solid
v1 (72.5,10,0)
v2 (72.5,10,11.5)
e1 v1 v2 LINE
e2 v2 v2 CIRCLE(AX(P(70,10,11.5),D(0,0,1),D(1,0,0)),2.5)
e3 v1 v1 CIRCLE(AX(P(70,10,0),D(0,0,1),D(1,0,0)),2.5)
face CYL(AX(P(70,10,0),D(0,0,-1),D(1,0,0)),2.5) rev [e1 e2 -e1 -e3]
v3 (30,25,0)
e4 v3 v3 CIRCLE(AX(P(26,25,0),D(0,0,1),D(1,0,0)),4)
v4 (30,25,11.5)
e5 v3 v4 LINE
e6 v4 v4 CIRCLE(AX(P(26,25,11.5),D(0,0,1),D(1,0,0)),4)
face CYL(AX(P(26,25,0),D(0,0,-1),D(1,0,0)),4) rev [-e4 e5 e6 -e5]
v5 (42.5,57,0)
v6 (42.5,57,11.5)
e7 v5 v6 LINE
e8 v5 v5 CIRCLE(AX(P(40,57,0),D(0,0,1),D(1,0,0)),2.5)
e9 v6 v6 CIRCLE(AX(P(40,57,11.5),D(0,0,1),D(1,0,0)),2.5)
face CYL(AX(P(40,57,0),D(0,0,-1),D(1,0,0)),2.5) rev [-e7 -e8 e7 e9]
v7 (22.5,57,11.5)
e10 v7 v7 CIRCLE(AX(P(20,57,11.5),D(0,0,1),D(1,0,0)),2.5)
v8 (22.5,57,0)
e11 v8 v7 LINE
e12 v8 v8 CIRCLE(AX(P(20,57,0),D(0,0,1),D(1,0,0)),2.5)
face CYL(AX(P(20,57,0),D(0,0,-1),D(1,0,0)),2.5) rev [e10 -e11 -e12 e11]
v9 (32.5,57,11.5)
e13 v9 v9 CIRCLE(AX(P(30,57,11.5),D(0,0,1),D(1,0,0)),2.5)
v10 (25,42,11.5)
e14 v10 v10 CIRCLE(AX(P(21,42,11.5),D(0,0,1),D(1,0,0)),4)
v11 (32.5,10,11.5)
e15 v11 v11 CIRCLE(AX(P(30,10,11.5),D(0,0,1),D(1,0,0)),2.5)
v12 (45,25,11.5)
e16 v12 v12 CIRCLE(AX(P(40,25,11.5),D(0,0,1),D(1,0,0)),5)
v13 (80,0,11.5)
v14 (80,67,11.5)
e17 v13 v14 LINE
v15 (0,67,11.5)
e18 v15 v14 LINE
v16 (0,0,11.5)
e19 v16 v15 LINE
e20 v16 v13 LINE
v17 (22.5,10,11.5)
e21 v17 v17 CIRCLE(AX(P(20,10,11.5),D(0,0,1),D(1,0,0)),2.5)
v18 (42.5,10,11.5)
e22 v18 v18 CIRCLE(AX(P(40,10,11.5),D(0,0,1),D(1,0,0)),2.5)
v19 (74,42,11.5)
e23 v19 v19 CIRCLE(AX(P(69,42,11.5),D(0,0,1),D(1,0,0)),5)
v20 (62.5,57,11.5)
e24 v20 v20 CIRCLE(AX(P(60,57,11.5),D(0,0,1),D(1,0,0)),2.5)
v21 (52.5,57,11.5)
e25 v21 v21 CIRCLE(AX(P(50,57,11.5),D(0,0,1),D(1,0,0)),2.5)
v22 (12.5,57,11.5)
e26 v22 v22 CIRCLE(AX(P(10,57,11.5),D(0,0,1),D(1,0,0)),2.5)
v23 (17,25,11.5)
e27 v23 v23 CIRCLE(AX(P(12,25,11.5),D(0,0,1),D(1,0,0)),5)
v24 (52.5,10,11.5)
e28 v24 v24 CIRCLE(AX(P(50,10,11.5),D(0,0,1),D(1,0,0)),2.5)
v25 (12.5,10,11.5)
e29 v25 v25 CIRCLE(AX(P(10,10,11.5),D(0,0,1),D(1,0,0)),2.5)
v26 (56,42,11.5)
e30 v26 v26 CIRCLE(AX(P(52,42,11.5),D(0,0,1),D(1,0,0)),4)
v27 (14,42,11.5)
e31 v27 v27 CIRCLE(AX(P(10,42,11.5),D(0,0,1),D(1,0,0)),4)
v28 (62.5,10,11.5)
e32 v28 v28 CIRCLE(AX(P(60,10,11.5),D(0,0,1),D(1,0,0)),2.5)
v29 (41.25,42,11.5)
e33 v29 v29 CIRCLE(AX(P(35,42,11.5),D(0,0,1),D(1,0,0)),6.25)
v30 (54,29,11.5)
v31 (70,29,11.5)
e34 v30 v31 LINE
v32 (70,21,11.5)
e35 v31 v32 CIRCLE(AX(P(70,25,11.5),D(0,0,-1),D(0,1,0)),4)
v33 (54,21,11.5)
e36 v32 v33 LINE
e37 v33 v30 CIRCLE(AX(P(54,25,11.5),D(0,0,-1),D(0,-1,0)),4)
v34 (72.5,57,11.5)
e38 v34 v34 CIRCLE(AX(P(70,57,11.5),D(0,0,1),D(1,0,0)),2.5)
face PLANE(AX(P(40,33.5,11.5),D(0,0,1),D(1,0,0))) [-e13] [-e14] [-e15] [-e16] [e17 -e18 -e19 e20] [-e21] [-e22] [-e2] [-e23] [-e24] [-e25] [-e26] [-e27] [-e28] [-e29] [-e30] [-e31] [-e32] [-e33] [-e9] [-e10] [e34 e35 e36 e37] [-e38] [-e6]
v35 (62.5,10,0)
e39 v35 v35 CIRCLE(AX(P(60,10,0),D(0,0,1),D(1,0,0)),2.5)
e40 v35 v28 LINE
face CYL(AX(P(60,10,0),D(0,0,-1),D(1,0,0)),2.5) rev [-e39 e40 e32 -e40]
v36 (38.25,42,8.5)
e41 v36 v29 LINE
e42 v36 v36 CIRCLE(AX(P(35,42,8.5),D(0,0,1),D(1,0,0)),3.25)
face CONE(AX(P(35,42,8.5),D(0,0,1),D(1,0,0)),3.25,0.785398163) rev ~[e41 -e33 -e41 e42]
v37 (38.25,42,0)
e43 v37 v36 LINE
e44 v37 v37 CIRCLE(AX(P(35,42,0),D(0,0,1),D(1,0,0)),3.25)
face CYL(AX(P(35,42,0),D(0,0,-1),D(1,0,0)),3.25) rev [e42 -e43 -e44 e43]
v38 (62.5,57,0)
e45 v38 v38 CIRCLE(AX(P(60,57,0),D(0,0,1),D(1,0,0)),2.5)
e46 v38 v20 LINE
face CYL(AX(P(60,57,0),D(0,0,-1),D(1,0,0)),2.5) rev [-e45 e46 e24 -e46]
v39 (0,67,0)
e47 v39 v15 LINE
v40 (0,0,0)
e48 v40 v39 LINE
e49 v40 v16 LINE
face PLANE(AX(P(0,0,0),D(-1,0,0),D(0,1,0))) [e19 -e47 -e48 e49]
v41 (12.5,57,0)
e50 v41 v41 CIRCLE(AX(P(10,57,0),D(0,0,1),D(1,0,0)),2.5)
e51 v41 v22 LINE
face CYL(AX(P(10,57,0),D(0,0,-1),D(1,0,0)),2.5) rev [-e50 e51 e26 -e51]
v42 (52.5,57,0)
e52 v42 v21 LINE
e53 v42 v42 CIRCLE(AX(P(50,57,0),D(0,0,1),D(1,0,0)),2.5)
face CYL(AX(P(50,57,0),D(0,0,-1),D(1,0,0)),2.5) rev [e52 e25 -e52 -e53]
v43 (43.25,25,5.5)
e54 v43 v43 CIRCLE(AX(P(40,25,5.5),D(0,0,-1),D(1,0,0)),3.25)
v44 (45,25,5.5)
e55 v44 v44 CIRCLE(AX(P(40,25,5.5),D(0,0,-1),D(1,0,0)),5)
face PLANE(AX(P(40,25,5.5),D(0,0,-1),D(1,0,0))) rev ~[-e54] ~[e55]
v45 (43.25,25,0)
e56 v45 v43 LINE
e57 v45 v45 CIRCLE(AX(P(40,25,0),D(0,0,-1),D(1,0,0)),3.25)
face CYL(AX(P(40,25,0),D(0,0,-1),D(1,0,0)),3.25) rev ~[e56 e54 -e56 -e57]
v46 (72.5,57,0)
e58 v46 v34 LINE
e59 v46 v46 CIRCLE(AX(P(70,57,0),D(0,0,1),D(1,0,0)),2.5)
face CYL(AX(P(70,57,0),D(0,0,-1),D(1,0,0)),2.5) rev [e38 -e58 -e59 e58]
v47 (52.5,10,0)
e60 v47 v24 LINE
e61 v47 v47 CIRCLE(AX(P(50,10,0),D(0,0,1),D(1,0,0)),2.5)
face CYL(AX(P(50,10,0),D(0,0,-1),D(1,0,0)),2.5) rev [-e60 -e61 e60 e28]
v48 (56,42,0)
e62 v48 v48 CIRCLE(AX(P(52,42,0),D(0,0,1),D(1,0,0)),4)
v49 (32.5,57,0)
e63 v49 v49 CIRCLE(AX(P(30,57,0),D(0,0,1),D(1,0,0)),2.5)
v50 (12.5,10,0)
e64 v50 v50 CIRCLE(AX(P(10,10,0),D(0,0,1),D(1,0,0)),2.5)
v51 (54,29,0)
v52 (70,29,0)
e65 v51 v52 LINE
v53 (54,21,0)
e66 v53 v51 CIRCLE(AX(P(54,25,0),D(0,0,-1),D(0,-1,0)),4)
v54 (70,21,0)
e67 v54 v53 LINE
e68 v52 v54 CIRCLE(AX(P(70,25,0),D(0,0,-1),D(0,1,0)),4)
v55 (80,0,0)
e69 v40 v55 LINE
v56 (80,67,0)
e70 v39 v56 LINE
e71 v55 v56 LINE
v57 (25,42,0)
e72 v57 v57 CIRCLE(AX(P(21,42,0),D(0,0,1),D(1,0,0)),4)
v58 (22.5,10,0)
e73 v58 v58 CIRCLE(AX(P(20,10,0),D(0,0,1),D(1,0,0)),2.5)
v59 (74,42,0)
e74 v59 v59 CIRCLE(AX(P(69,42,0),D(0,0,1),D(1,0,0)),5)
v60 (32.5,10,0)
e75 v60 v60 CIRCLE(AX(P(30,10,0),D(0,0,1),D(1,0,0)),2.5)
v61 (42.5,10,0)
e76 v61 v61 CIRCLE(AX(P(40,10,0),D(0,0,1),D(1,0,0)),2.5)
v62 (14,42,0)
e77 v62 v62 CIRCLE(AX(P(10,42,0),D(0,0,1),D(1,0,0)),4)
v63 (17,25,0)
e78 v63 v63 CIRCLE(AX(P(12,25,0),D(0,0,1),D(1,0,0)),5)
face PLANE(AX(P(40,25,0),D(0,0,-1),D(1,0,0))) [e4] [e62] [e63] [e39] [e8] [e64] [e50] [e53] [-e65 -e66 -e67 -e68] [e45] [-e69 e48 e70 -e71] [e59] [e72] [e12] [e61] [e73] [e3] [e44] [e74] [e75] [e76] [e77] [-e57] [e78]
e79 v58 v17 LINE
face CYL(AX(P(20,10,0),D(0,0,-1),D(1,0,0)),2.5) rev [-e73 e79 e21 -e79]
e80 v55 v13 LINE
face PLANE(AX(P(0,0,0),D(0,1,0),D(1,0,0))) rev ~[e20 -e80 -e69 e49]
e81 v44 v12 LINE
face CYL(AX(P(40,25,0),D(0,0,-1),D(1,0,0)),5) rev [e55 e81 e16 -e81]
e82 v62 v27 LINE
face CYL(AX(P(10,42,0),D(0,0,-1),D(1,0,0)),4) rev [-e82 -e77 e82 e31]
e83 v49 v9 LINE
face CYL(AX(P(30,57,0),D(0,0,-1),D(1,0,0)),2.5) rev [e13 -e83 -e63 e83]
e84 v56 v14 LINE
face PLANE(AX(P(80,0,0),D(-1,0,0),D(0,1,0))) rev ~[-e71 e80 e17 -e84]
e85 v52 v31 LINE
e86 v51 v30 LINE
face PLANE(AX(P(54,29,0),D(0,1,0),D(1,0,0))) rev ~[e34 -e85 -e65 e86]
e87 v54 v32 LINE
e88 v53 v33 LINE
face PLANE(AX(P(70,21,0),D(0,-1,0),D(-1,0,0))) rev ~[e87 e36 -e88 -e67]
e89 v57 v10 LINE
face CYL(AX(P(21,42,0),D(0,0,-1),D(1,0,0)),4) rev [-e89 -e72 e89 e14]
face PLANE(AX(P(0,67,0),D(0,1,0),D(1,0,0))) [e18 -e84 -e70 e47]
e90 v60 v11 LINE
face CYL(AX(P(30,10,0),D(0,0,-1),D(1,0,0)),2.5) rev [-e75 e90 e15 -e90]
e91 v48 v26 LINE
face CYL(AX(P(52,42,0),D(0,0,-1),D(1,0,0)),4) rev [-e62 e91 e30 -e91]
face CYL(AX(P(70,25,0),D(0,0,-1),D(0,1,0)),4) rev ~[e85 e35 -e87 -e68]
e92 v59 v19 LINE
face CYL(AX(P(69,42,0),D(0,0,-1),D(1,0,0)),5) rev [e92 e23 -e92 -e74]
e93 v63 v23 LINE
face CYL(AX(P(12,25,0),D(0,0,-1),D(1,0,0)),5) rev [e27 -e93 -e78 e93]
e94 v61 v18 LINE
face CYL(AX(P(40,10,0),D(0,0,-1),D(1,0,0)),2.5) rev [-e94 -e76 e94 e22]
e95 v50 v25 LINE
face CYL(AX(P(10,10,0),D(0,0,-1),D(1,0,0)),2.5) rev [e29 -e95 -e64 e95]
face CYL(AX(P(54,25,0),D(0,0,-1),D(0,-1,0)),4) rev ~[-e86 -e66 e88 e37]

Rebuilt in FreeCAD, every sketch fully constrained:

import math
import FreeCAD as App
import Part
import Sketcher

V = App.Vector
Q = App.Units.Quantity


def edges_at(feature, points):
    """Names of the edges that pass closest to the given points."""
    edges = feature.Shape.Edges
    near = lambda p: min(range(len(edges)), key=lambda i: edges[i].distToShape(Part.Vertex(*p))[0])
    return sorted({f"Edge{near(p) + 1}" for p in points})


def add_polygon(sketch, points):
    """Adds a closed chain of lines whose ends are joined by coincident constraints."""
    first, n = sketch.GeometryCount, len(points)
    for a, b in zip(points, points[1:] + points[:1]):
        sketch.addGeometry(Part.LineSegment(App.Vector(*a, 0), App.Vector(*b, 0)), False)
    for i in range(n):
        sketch.addConstraint(Sketcher.Constraint("Coincident", first + i, 2, first + (i + 1) % n, 1))

doc = App.newDocument("Part")
body = doc.addObject("PartDesign::Body", "Body")

# Sketch on XY plane
sketch1 = body.newObject("Sketcher::SketchObject", "Sketch")
sketch1.AttachmentSupport = (doc.getObject("XY_Plane"), [""])
sketch1.MapMode = "FlatFace"
add_polygon(sketch1, [(0, 67), (0, 0), (80, 0), (80, 67)])  # lines 0-3
sketch1.addGeometry(Part.Circle(V(10, 10, 0), V(0, 0, 1), 2.5), False)  # 4
sketch1.addGeometry(Part.Circle(V(20, 10, 0), V(0, 0, 1), 2.5), False)  # 5
sketch1.addGeometry(Part.Circle(V(30, 10, 0), V(0, 0, 1), 2.5), False)  # 6
sketch1.addGeometry(Part.Circle(V(12, 25, 0), V(0, 0, 1), 5), False)  # 7
sketch1.addGeometry(Part.Circle(V(26, 25, 0), V(0, 0, 1), 4), False)  # 8
sketch1.addGeometry(Part.Circle(V(40, 10, 0), V(0, 0, 1), 2.5), False)  # 9
sketch1.addGeometry(Part.Circle(V(50, 10, 0), V(0, 0, 1), 2.5), False)  # 10
sketch1.addGeometry(Part.Circle(V(60, 10, 0), V(0, 0, 1), 2.5), False)  # 11
sketch1.addGeometry(Part.Circle(V(70, 10, 0), V(0, 0, 1), 2.5), False)  # 12
sketch1.addGeometry(Part.Circle(V(40, 25, 0), V(0, 0, 1), 5), False)  # 13
sketch1.addGeometry(Part.ArcOfCircle(Part.Circle(V(54, 25, 0), V(0, 0, 1), 4), math.radians(90), math.radians(270)), False)  # 14
sketch1.addGeometry(Part.LineSegment(V(54, 29, 0), V(70, 29, 0)), False)  # 15
sketch1.addGeometry(Part.ArcOfCircle(Part.Circle(V(70, 25, 0), V(0, 0, 1), 4), math.radians(-90), math.radians(90)), False)  # 16
sketch1.addGeometry(Part.LineSegment(V(70, 21, 0), V(54, 21, 0)), False)  # 17
sketch1.addGeometry(Part.Circle(V(10, 42, 0), V(0, 0, 1), 4), False)  # 18
sketch1.addGeometry(Part.Circle(V(21, 42, 0), V(0, 0, 1), 4), False)  # 19
sketch1.addGeometry(Part.Circle(V(35, 42, 0), V(0, 0, 1), 3.2), False)  # 20
sketch1.addGeometry(Part.Circle(V(10, 57, 0), V(0, 0, 1), 2.5), False)  # 21
sketch1.addGeometry(Part.Circle(V(20, 57, 0), V(0, 0, 1), 2.5), False)  # 22
sketch1.addGeometry(Part.Circle(V(30, 57, 0), V(0, 0, 1), 2.5), False)  # 23
sketch1.addGeometry(Part.Circle(V(52, 42, 0), V(0, 0, 1), 4), False)  # 24
sketch1.addGeometry(Part.Circle(V(69, 42, 0), V(0, 0, 1), 5), False)  # 25
sketch1.addGeometry(Part.Circle(V(40, 57, 0), V(0, 0, 1), 2.5), False)  # 26
sketch1.addGeometry(Part.Circle(V(50, 57, 0), V(0, 0, 1), 2.5), False)  # 27
sketch1.addGeometry(Part.Circle(V(60, 57, 0), V(0, 0, 1), 2.5), False)  # 28
sketch1.addGeometry(Part.Circle(V(70, 57, 0), V(0, 0, 1), 2.5), False)  # 29
sketch1.addConstraint([
    Sketcher.Constraint("Tangent", 14, 1, 15, 1),
    Sketcher.Constraint("Tangent", 15, 2, 16, 2),
    Sketcher.Constraint("Tangent", 16, 1, 17, 1),
    Sketcher.Constraint("Tangent", 17, 2, 14, 2),
    Sketcher.Constraint("Vertical", 0),
    Sketcher.Constraint("Horizontal", 1),
    Sketcher.Constraint("Vertical", 2),
    Sketcher.Constraint("Horizontal", 3),
    Sketcher.Constraint("Horizontal", 15),
    Sketcher.Constraint("Horizontal", 17),
    Sketcher.Constraint("Coincident", 0, 2, -1, 1),
    Sketcher.Constraint("Equal", 4, 5),
    Sketcher.Constraint("Equal", 5, 6),
    Sketcher.Constraint("Equal", 6, 9),
    Sketcher.Constraint("Equal", 9, 10),
    Sketcher.Constraint("Equal", 10, 11),
    Sketcher.Constraint("Equal", 11, 12),
    Sketcher.Constraint("Equal", 7, 13),
    Sketcher.Constraint("Equal", 8, 14),
    Sketcher.Constraint("Equal", 16, 18),
    Sketcher.Constraint("Equal", 18, 19),
    Sketcher.Constraint("Equal", 12, 21),
    Sketcher.Constraint("Equal", 21, 22),
    Sketcher.Constraint("Equal", 22, 23),
    Sketcher.Constraint("Equal", 19, 24),
    Sketcher.Constraint("Equal", 13, 25),
    Sketcher.Constraint("Equal", 23, 26),
    Sketcher.Constraint("Equal", 26, 27),
    Sketcher.Constraint("Equal", 27, 28),
    Sketcher.Constraint("Equal", 28, 29),
    Sketcher.Constraint("Horizontal", 4, 3, 5, 3),
    Sketcher.Constraint("Horizontal", 5, 3, 6, 3),
    Sketcher.Constraint("Horizontal", 7, 3, 8, 3),
    Sketcher.Constraint("Horizontal", 6, 3, 9, 3),
    Sketcher.Constraint("Horizontal", 9, 3, 10, 3),
    Sketcher.Constraint("Horizontal", 10, 3, 11, 3),
    Sketcher.Constraint("Horizontal", 11, 3, 12, 3),
    Sketcher.Constraint("Horizontal", 8, 3, 13, 3),
    Sketcher.Constraint("Horizontal", 13, 3, 14, 3),
    Sketcher.Constraint("Horizontal", 18, 3, 19, 3),
    Sketcher.Constraint("Horizontal", 19, 3, 20, 3),
    Sketcher.Constraint("Horizontal", 21, 3, 22, 3),
    Sketcher.Constraint("Horizontal", 22, 3, 23, 3),
    Sketcher.Constraint("Horizontal", 20, 3, 24, 3),
    Sketcher.Constraint("Horizontal", 24, 3, 25, 3),
    Sketcher.Constraint("Horizontal", 23, 3, 26, 3),
    Sketcher.Constraint("Horizontal", 26, 3, 27, 3),
    Sketcher.Constraint("Horizontal", 27, 3, 28, 3),
    Sketcher.Constraint("Horizontal", 28, 3, 29, 3),
    Sketcher.Constraint("Vertical", 9, 3, 13, 3),
    Sketcher.Constraint("Vertical", 12, 3, 16, 3),
    Sketcher.Constraint("Vertical", 4, 3, 18, 3),
    Sketcher.Constraint("Vertical", 18, 3, 21, 3),
    Sketcher.Constraint("Vertical", 5, 3, 22, 3),
    Sketcher.Constraint("Vertical", 6, 3, 23, 3),
    Sketcher.Constraint("Vertical", 13, 3, 26, 3),
    Sketcher.Constraint("Vertical", 10, 3, 27, 3),
    Sketcher.Constraint("Vertical", 11, 3, 28, 3),
    Sketcher.Constraint("Vertical", 16, 3, 29, 3),
    Sketcher.Constraint("Diameter", 4, Q("5 mm")),
    Sketcher.Constraint("Diameter", 7, Q("10 mm")),
    Sketcher.Constraint("Diameter", 8, Q("8 mm")),
    Sketcher.Constraint("Diameter", 20, Q("6.5 mm")),
    Sketcher.Constraint("DistanceX", 1, 1, 1, 2, Q("80 mm")),
    Sketcher.Constraint("DistanceX", 15, 1, 15, 2, Q("16 mm")),
    Sketcher.Constraint("DistanceY", 0, 2, 0, 1, Q("67 mm")),
    Sketcher.Constraint("DistanceX", -1, 1, 4, 3, Q("10 mm")),
    Sketcher.Constraint("DistanceY", -1, 1, 4, 3, Q("10 mm")),
    Sketcher.Constraint("DistanceX", -1, 1, 5, 3, Q("20 mm")),
    Sketcher.Constraint("DistanceX", -1, 1, 6, 3, Q("30 mm")),
    Sketcher.Constraint("DistanceX", -1, 1, 7, 3, Q("12 mm")),
    Sketcher.Constraint("DistanceY", -1, 1, 7, 3, Q("25 mm")),
    Sketcher.Constraint("DistanceX", -1, 1, 8, 3, Q("26 mm")),
    Sketcher.Constraint("DistanceX", -1, 1, 9, 3, Q("40 mm")),
    Sketcher.Constraint("DistanceX", -1, 1, 10, 3, Q("50 mm")),
    Sketcher.Constraint("DistanceX", -1, 1, 11, 3, Q("60 mm")),
    Sketcher.Constraint("DistanceX", -1, 1, 12, 3, Q("70 mm")),
    Sketcher.Constraint("DistanceY", -1, 1, 18, 3, Q("42 mm")),
    Sketcher.Constraint("DistanceX", -1, 1, 19, 3, Q("21 mm")),
    Sketcher.Constraint("DistanceX", -1, 1, 20, 3, Q("35 mm")),
    Sketcher.Constraint("DistanceY", -1, 1, 21, 3, Q("57 mm")),
    Sketcher.Constraint("DistanceX", -1, 1, 24, 3, Q("52 mm")),
    Sketcher.Constraint("DistanceX", -1, 1, 25, 3, Q("69 mm")),
])
pad1 = body.newObject("PartDesign::Pad", "Pad")
pad1.Profile = sketch1
pad1.Length = 11.5
doc.recompute()

chamfer = body.newObject("PartDesign::Chamfer", "Chamfer")
chamfer.Base = (pad1, edges_at(pad1, [(31.75, 42, 11.5)]))
chamfer.ChamferType = "Two distances"
chamfer.Size = 3
chamfer.Size2 = 3

# Sketch on XY plane
sketch2 = body.newObject("Sketcher::SketchObject", "Sketch001")
sketch2.AttachmentSupport = (doc.getObject("XY_Plane"), [""])
sketch2.MapMode = "FlatFace"
sketch2.addGeometry([
    Part.Circle(V(40, 25, 0), V(0, 0, 1), 5),
    Part.Circle(V(40, 25, 0), V(0, 0, 1), 3.2),
], False)
sketch2.addConstraint([
    Sketcher.Constraint("Coincident", 1, 3, 0, 3),
    Sketcher.Constraint("Diameter", 0, Q("10 mm")),
    Sketcher.Constraint("Diameter", 1, Q("6.5 mm")),
    Sketcher.Constraint("DistanceX", -1, 1, 0, 3, Q("40 mm")),
    Sketcher.Constraint("DistanceY", -1, 1, 0, 3, Q("25 mm")),
])
pad2 = body.newObject("PartDesign::Pad", "Pad001")
pad2.Profile = sketch2
pad2.Length = 5.5

doc.recompute()
